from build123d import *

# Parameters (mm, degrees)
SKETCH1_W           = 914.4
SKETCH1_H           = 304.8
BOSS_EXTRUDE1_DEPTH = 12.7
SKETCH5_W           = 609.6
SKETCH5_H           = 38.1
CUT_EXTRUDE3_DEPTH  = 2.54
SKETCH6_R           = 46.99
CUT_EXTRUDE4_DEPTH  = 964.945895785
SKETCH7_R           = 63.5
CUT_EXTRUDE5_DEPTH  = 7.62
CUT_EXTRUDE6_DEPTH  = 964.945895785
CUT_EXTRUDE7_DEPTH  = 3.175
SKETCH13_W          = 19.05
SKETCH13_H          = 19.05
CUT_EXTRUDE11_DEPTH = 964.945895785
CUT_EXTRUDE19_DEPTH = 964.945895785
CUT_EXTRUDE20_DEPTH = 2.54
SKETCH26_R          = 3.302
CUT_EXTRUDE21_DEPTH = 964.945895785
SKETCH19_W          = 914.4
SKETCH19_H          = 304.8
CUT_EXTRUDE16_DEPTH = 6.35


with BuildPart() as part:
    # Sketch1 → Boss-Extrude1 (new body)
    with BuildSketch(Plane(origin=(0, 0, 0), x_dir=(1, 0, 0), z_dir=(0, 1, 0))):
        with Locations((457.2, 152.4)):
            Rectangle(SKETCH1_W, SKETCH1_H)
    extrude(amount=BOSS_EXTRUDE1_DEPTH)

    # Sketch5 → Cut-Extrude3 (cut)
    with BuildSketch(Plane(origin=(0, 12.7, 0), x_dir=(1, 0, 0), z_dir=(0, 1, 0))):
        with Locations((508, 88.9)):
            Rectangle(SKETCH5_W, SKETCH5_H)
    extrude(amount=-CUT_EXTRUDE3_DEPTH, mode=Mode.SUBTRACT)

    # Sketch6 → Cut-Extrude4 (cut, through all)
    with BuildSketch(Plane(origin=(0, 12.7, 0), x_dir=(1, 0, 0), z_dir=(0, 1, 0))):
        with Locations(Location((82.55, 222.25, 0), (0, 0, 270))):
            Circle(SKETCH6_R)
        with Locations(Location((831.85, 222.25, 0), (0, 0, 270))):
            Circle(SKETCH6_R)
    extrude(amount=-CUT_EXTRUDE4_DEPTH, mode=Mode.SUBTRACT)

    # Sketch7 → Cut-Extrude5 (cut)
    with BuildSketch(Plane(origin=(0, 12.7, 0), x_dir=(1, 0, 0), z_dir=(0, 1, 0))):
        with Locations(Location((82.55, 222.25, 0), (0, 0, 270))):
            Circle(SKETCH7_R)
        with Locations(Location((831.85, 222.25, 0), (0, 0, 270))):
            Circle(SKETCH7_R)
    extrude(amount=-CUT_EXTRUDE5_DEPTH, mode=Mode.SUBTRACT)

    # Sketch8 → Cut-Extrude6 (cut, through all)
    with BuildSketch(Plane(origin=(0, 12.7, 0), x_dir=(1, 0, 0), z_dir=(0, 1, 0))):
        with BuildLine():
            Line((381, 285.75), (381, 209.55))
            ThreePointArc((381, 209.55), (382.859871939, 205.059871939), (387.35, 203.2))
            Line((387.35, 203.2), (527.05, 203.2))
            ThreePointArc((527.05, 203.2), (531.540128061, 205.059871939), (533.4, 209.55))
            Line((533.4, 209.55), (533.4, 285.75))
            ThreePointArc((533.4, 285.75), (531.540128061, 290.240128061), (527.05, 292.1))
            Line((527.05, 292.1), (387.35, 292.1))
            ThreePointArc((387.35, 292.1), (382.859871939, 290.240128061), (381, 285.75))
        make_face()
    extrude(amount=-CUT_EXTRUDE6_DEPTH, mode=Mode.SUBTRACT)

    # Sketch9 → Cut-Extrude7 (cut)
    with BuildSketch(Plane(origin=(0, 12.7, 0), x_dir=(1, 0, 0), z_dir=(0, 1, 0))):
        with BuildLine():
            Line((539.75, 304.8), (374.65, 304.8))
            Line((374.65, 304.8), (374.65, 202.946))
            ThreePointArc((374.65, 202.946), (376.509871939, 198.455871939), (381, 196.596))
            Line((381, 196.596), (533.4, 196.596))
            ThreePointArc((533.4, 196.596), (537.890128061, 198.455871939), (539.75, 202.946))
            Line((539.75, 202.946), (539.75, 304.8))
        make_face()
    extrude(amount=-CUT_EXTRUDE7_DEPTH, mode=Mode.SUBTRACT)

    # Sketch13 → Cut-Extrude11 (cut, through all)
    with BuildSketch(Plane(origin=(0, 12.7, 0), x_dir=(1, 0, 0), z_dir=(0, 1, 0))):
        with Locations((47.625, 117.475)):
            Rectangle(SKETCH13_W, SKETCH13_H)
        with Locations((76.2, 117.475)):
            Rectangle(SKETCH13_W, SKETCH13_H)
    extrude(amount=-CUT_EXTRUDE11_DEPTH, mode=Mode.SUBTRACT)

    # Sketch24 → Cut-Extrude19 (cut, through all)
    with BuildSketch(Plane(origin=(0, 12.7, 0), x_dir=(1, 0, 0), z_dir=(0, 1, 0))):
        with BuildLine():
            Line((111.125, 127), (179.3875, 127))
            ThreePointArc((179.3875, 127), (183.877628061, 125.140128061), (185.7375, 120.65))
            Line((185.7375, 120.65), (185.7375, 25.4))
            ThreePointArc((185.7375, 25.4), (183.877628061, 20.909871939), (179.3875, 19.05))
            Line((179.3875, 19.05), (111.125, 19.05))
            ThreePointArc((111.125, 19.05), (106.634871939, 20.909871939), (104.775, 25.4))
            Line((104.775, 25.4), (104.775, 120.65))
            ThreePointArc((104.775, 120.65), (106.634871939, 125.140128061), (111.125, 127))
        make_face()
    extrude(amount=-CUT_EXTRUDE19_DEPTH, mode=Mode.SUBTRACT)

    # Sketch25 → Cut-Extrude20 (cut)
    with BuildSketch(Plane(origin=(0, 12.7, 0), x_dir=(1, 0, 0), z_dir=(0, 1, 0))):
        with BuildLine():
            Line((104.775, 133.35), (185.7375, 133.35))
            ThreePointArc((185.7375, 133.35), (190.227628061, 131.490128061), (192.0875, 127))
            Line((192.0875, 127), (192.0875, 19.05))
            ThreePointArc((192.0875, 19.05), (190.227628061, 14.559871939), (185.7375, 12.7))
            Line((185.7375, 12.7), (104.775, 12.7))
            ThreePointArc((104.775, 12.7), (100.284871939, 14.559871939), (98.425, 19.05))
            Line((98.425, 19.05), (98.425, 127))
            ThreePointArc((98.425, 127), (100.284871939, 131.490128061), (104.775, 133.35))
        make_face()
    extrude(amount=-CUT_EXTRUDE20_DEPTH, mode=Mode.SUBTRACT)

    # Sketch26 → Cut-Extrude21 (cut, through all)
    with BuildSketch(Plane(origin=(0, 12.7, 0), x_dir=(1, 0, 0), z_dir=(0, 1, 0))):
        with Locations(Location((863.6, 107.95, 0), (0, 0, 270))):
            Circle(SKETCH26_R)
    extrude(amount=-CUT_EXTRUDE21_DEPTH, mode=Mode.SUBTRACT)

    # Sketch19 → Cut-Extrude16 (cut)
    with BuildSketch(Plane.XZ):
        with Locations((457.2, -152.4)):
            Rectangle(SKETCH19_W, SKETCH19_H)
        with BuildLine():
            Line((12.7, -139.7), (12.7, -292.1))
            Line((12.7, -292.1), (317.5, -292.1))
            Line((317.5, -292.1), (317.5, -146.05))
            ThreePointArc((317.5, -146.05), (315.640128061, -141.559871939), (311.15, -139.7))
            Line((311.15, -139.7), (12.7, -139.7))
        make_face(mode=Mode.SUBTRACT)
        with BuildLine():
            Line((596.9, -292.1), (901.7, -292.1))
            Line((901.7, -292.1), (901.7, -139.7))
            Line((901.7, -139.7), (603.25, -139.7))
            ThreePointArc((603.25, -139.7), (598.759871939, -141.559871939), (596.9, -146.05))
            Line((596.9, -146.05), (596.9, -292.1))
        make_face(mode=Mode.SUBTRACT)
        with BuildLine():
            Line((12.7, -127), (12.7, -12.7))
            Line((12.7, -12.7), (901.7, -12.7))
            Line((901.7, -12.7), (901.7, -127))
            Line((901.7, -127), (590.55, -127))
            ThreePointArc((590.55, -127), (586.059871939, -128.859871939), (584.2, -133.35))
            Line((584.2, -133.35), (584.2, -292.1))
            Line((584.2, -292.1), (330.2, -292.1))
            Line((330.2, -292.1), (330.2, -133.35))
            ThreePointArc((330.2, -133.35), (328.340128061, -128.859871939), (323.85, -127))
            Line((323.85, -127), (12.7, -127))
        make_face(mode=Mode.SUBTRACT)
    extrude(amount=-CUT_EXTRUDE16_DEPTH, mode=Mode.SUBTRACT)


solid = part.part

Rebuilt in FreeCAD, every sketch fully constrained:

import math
import FreeCAD as App
import Part
import Sketcher
Q = App.Units.Quantity


def add_polygon(sketch, points):
    """Adds a closed chain of lines whose ends are joined by coincident constraints."""
    first, n = sketch.GeometryCount, len(points)
    for a, b in zip(points, points[1:] + points[:1]):
        sketch.addGeometry(Part.LineSegment(App.Vector(*a, 0), App.Vector(*b, 0)), False)
    for i in range(n):
        sketch.addConstraint(Sketcher.Constraint("Coincident", first + i, 2, first + (i + 1) % n, 1))

doc = App.newDocument("Part")
body = doc.addObject("PartDesign::Body", "Body")

sketch1 = body.newObject("Sketcher::SketchObject", "Sketch")
sketch1.AttachmentSupport = (doc.getObject("XZ_Plane"), [""])
sketch1.MapMode = "FlatFace"
add_polygon(sketch1, [(0, -304.8), (0, 0), (914.4, 0), (914.4, -304.8)])
sketch1.addConstraint(Sketcher.Constraint("Vertical", 0))
sketch1.addConstraint(Sketcher.Constraint("Horizontal", 1))
sketch1.addConstraint(Sketcher.Constraint("Vertical", 2))
sketch1.addConstraint(Sketcher.Constraint("Horizontal", 3))
sketch1.addConstraint(Sketcher.Constraint("Coincident", 0, 2, -1, 1))
sketch1.addConstraint(Sketcher.Constraint("DistanceX", 1, 1, 1, 2, Q("36 in")))
sketch1.addConstraint(Sketcher.Constraint("DistanceY", 0, 1, 0, 2, Q("12 in")))
pad1 = body.newObject("PartDesign::Pad", "Pad")
pad1.Profile = sketch1
pad1.Length = Q("0.5 in")
pad1.Reversed = True

sketch2 = body.newObject("Sketcher::SketchObject", "Sketch001")
sketch2.AttachmentSupport = (doc.getObject("XZ_Plane"), [""])
sketch2.MapMode = "FlatFace"
sketch2.AttachmentOffset = App.Placement(App.Vector(0, 0, -0.5 * 25.4), App.Rotation())
add_polygon(sketch2, [(203.2, -107.95), (203.2, -69.85), (812.8, -69.85), (812.8, -107.95)])
sketch2.addConstraint(Sketcher.Constraint("Vertical", 0))
sketch2.addConstraint(Sketcher.Constraint("Horizontal", 1))
sketch2.addConstraint(Sketcher.Constraint("Vertical", 2))
sketch2.addConstraint(Sketcher.Constraint("Horizontal", 3))
sketch2.addConstraint(Sketcher.Constraint("DistanceX", 1, 1, 1, 2, Q("24 in")))
sketch2.addConstraint(Sketcher.Constraint("DistanceY", 0, 1, 0, 2, Q("1.5 in")))
sketch2.addConstraint(Sketcher.Constraint("DistanceX", -1, 1, 0, 2, Q("8 in")))
sketch2.addConstraint(Sketcher.Constraint("DistanceY", 0, 2, -1, 1, Q("2.75 in")))
pocket1 = body.newObject("PartDesign::Pocket", "Pocket")
pocket1.Profile = sketch2
pocket1.Length = Q("0.1 in")
pocket1.Reversed = True

sketch3 = body.newObject("Sketcher::SketchObject", "Sketch002")
sketch3.AttachmentSupport = (doc.getObject("XZ_Plane"), [""])
sketch3.MapMode = "FlatFace"
sketch3.AttachmentOffset = App.Placement(App.Vector(0, 0, -0.5 * 25.4), App.Rotation())
sketch3.addGeometry(Part.Circle(App.Vector(82.55, -222.25, 0), App.Vector(0, 0, 1), 46.99), False)
sketch3.addGeometry(Part.Circle(App.Vector(831.85, -222.25, 0), App.Vector(0, 0, 1), 46.99), False)
sketch3.addConstraint(Sketcher.Constraint("Equal", 0, 1))
sketch3.addConstraint(Sketcher.Constraint("Horizontal", 0, 3, 1, 3))
sketch3.addConstraint(Sketcher.Constraint("Diameter", 0, Q("3.7 in")))
sketch3.addConstraint(Sketcher.Constraint("DistanceX", 0, 3, 1, 3, Q("29.5 in")))
sketch3.addConstraint(Sketcher.Constraint("DistanceX", -1, 1, 0, 3, Q("3.25 in")))
sketch3.addConstraint(Sketcher.Constraint("DistanceY", 0, 3, -1, 1, Q("8.75 in")))
pocket2 = body.newObject("PartDesign::Pocket", "Pocket001")
pocket2.Profile = sketch3
pocket2.Type = "ThroughAll"
pocket2.Reversed = True

sketch4 = body.newObject("Sketcher::SketchObject", "Sketch003")
sketch4.AttachmentSupport = (doc.getObject("XZ_Plane"), [""])
sketch4.MapMode = "FlatFace"
sketch4.AttachmentOffset = App.Placement(App.Vector(0, 0, -0.5 * 25.4), App.Rotation())
sketch4.addGeometry(Part.Circle(App.Vector(82.55, -222.25, 0), App.Vector(0, 0, 1), 63.5), False)
sketch4.addGeometry(Part.Circle(App.Vector(831.85, -222.25, 0), App.Vector(0, 0, 1), 63.5), False)
sketch4.addConstraint(Sketcher.Constraint("Equal", 0, 1))
sketch4.addConstraint(Sketcher.Constraint("Horizontal", 0, 3, 1, 3))
sketch4.addConstraint(Sketcher.Constraint("Diameter", 0, Q("5 in")))
sketch4.addConstraint(Sketcher.Constraint("DistanceX", 0, 3, 1, 3, Q("29.5 in")))
sketch4.addConstraint(Sketcher.Constraint("DistanceX", -1, 1, 0, 3, Q("3.25 in")))
sketch4.addConstraint(Sketcher.Constraint("DistanceY", 0, 3, -1, 1, Q("8.75 in")))
pocket3 = body.newObject("PartDesign::Pocket", "Pocket002")
pocket3.Profile = sketch4
pocket3.Length = Q("0.3 in")
pocket3.Reversed = True

sketch5 = body.newObject("Sketcher::SketchObject", "Sketch004")
sketch5.AttachmentSupport = (doc.getObject("XZ_Plane"), [""])
sketch5.MapMode = "FlatFace"
sketch5.AttachmentOffset = App.Placement(App.Vector(0, 0, -0.5 * 25.4), App.Rotation())
sketch5.addGeometry(Part.LineSegment(App.Vector(381, -285.75, 0), App.Vector(381, -209.55, 0)), False)
sketch5.addGeometry(Part.ArcOfCircle(Part.Circle(App.Vector(387.35, -209.55, 0), App.Vector(0, 0, 1), 6.35), math.radians(90), math.radians(180)), False)
sketch5.addGeometry(Part.LineSegment(App.Vector(387.35, -203.2, 0), App.Vector(527.05, -203.2, 0)), False)
sketch5.addGeometry(Part.ArcOfCircle(Part.Circle(App.Vector(527.05, -209.55, 0), App.Vector(0, 0, 1), 6.35), math.radians(0), math.radians(90)), False)
sketch5.addGeometry(Part.LineSegment(App.Vector(533.4, -209.55, 0), App.Vector(533.4, -285.75, 0)), False)
sketch5.addGeometry(Part.ArcOfCircle(Part.Circle(App.Vector(527.05, -285.75, 0), App.Vector(0, 0, 1), 6.35), math.radians(-90), math.radians(0)), False)
sketch5.addGeometry(Part.LineSegment(App.Vector(527.05, -292.1, 0), App.Vector(387.35, -292.1, 0)), False)
sketch5.addGeometry(Part.ArcOfCircle(Part.Circle(App.Vector(387.35, -285.75, 0), App.Vector(0, 0, 1), 6.35), math.radians(180), math.radians(270)), False)
sketch5.addConstraint(Sketcher.Constraint("Tangent", 0, 2, 1, 2))
sketch5.addConstraint(Sketcher.Constraint("Tangent", 1, 1, 2, 1))
sketch5.addConstraint(Sketcher.Constraint("Tangent", 2, 2, 3, 2))
sketch5.addConstraint(Sketcher.Constraint("Tangent", 3, 1, 4, 1))
sketch5.addConstraint(Sketcher.Constraint("Tangent", 4, 2, 5, 2))
sketch5.addConstraint(Sketcher.Constraint("Tangent", 5, 1, 6, 1))
sketch5.addConstraint(Sketcher.Constraint("Tangent", 6, 2, 7, 2))
sketch5.addConstraint(Sketcher.Constraint("Tangent", 7, 1, 0, 1))
sketch5.addConstraint(Sketcher.Constraint("Vertical", 0))
sketch5.addConstraint(Sketcher.Constraint("Horizontal", 2))
sketch5.addConstraint(Sketcher.Constraint("Vertical", 4))
sketch5.addConstraint(Sketcher.Constraint("Horizontal", 6))
sketch5.addConstraint(Sketcher.Constraint("Equal", 1, 3))
sketch5.addConstraint(Sketcher.Constraint("Equal", 3, 5))
sketch5.addConstraint(Sketcher.Constraint("Equal", 5, 7))
sketch5.addConstraint(Sketcher.Constraint("DistanceY", 0, 1, 0, 2, Q("3 in")))
sketch5.addConstraint(Sketcher.Constraint("Radius", 1, Q("0.25 in")))
sketch5.addConstraint(Sketcher.Constraint("DistanceX", 2, 1, 2, 2, Q("5.5 in")))
sketch5.addConstraint(Sketcher.Constraint("DistanceX", -1, 1, 0, 2, Q("15 in")))
sketch5.addConstraint(Sketcher.Constraint("DistanceY", 1, 1, -1, 1, Q("8 in")))
pocket4 = body.newObject("PartDesign::Pocket", "Pocket003")
pocket4.Profile = sketch5
pocket4.Type = "ThroughAll"
pocket4.Reversed = True

sketch6 = body.newObject("Sketcher::SketchObject", "Sketch005")
sketch6.AttachmentSupport = (doc.getObject("XZ_Plane"), [""])
sketch6.MapMode = "FlatFace"
sketch6.AttachmentOffset = App.Placement(App.Vector(0, 0, -0.5 * 25.4), App.Rotation())
sketch6.addGeometry(Part.LineSegment(App.Vector(539.75, -304.8, 0), App.Vector(374.65, -304.8, 0)), False)
sketch6.addGeometry(Part.LineSegment(App.Vector(374.65, -304.8, 0), App.Vector(374.65, -202.946, 0)), False)
sketch6.addGeometry(Part.ArcOfCircle(Part.Circle(App.Vector(381, -202.946, 0), App.Vector(0, 0, 1), 6.35), math.radians(90), math.radians(180)), False)
sketch6.addGeometry(Part.LineSegment(App.Vector(381, -196.596, 0), App.Vector(533.4, -196.596, 0)), False)
sketch6.addGeometry(Part.ArcOfCircle(Part.Circle(App.Vector(533.4, -202.946, 0), App.Vector(0, 0, 1), 6.35), math.radians(0), math.radians(90)), False)
sketch6.addGeometry(Part.LineSegment(App.Vector(539.75, -202.946, 0), App.Vector(539.75, -304.8, 0)), False)
sketch6.addConstraint(Sketcher.Constraint("Coincident", 0, 2, 1, 1))
sketch6.addConstraint(Sketcher.Constraint("Tangent", 1, 2, 2, 2))
sketch6.addConstraint(Sketcher.Constraint("Tangent", 2, 1, 3, 1))
sketch6.addConstraint(Sketcher.Constraint("Tangent", 3, 2, 4, 2))
sketch6.addConstraint(Sketcher.Constraint("Tangent", 4, 1, 5, 1))
sketch6.addConstraint(Sketcher.Constraint("Coincident", 5, 2, 0, 1))
sketch6.addConstraint(Sketcher.Constraint("Horizontal", 0))
sketch6.addConstraint(Sketcher.Constraint("Vertical", 1))
sketch6.addConstraint(Sketcher.Constraint("Horizontal", 3))
sketch6.addConstraint(Sketcher.Constraint("Vertical", 5))
sketch6.addConstraint(Sketcher.Constraint("Equal", 2, 4))
sketch6.addConstraint(Sketcher.Constraint("DistanceX", 3, 1, 3, 2, Q("6 in")))
sketch6.addConstraint(Sketcher.Constraint("Radius", 2, Q("0.25 in")))
sketch6.addConstraint(Sketcher.Constraint("DistanceX", -1, 1, 2, 3, Q("15 in")))
sketch6.addConstraint(Sketcher.Constraint("DistanceY", 0, 2, -1, 1, Q("12 in")))
sketch6.addConstraint(Sketcher.Constraint("DistanceY", 1, 1, 1, 2, Q("4.01 in")))
pocket5 = body.newObject("PartDesign::Pocket", "Pocket004")
pocket5.Profile = sketch6
pocket5.Length = Q("0.125 in")
pocket5.Reversed = True

sketch7 = body.newObject("Sketcher::SketchObject", "Sketch006")
sketch7.AttachmentSupport = (doc.getObject("XZ_Plane"), [""])
sketch7.MapMode = "FlatFace"
sketch7.AttachmentOffset = App.Placement(App.Vector(0, 0, -0.5 * 25.4), App.Rotation())
add_polygon(sketch7, [(38.1, -127), (38.1, -107.95), (57.15, -107.95), (57.15, -127)])
add_polygon(sketch7, [(66.675, -127), (66.675, -107.95), (85.725, -107.95), (85.725, -127)])
sketch7.addConstraint(Sketcher.Constraint("Vertical", 0))
sketch7.addConstraint(Sketcher.Constraint("Horizontal", 1))
sketch7.addConstraint(Sketcher.Constraint("Vertical", 2))
sketch7.addConstraint(Sketcher.Constraint("Horizontal", 3))
sketch7.addConstraint(Sketcher.Constraint("Vertical", 4))
sketch7.addConstraint(Sketcher.Constraint("Horizontal", 5))
sketch7.addConstraint(Sketcher.Constraint("Vertical", 6))
sketch7.addConstraint(Sketcher.Constraint("Horizontal", 7))
sketch7.addConstraint(Sketcher.Constraint("Horizontal", 1, 2, 4, 2))
sketch7.addConstraint(Sketcher.Constraint("Horizontal", 3, 2, 6, 2))
sketch7.addConstraint(Sketcher.Constraint("Equal", 3, 5))
sketch7.addConstraint(Sketcher.Constraint("Equal", 7, 0))
sketch7.addConstraint(Sketcher.Constraint("DistanceY", 2, 2, -1, 1, Q("5 in")))
sketch7.addConstraint(Sketcher.Constraint("DistanceX", 1, 1, 1, 2, Q("0.75 in")))
sketch7.addConstraint(Sketcher.Constraint("DistanceX", -1, 1, 0, 2, Q("1.5 in")))
sketch7.addConstraint(Sketcher.Constraint("DistanceX", -1, 1, 4, 2, Q("2.625 in")))
pocket6 = body.newObject("PartDesign::Pocket", "Pocket005")
pocket6.Profile = sketch7
pocket6.Type = "ThroughAll"
pocket6.Reversed = True

sketch8 = body.newObject("Sketcher::SketchObject", "Sketch007")
sketch8.AttachmentSupport = (doc.getObject("XZ_Plane"), [""])
sketch8.MapMode = "FlatFace"
sketch8.AttachmentOffset = App.Placement(App.Vector(0, 0, -0.5 * 25.4), App.Rotation())
sketch8.addGeometry(Part.LineSegment(App.Vector(179.3875, -127, 0), App.Vector(111.125, -127, 0)), False)
sketch8.addGeometry(Part.ArcOfCircle(Part.Circle(App.Vector(111.125, -120.65, 0), App.Vector(0, 0, 1), 6.35), math.radians(180), math.radians(270)), False)
sketch8.addGeometry(Part.LineSegment(App.Vector(104.775, -120.65, 0), App.Vector(104.775, -25.4, 0)), False)
sketch8.addGeometry(Part.ArcOfCircle(Part.Circle(App.Vector(111.125, -25.4, 0), App.Vector(0, 0, 1), 6.35), math.radians(90), math.radians(180)), False)
sketch8.addGeometry(Part.LineSegment(App.Vector(111.125, -19.05, 0), App.Vector(179.3875, -19.05, 0)), False)
sketch8.addGeometry(Part.ArcOfCircle(Part.Circle(App.Vector(179.3875, -25.4, 0), App.Vector(0, 0, 1), 6.35), math.radians(0), math.radians(90)), False)
sketch8.addGeometry(Part.LineSegment(App.Vector(185.7375, -25.4, 0), App.Vector(185.7375, -120.65, 0)), False)
sketch8.addGeometry(Part.ArcOfCircle(Part.Circle(App.Vector(179.3875, -120.65, 0), App.Vector(0, 0, 1), 6.35), math.radians(-90), math.radians(0)), False)
sketch8.addConstraint(Sketcher.Constraint("Tangent", 0, 2, 1, 2))
sketch8.addConstraint(Sketcher.Constraint("Tangent", 1, 1, 2, 1))
sketch8.addConstraint(Sketcher.Constraint("Tangent", 2, 2, 3, 2))
sketch8.addConstraint(Sketcher.Constraint("Tangent", 3, 1, 4, 1))
sketch8.addConstraint(Sketcher.Constraint("Tangent", 4, 2, 5, 2))
sketch8.addConstraint(Sketcher.Constraint("Tangent", 5, 1, 6, 1))
sketch8.addConstraint(Sketcher.Constraint("Tangent", 6, 2, 7, 2))
sketch8.addConstraint(Sketcher.Constraint("Tangent", 7, 1, 0, 1))
sketch8.addConstraint(Sketcher.Constraint("Horizontal", 0))
sketch8.addConstraint(Sketcher.Constraint("Vertical", 2))
sketch8.addConstraint(Sketcher.Constraint("Horizontal", 4))
sketch8.addConstraint(Sketcher.Constraint("Vertical", 6))
sketch8.addConstraint(Sketcher.Constraint("Equal", 1, 3))
sketch8.addConstraint(Sketcher.Constraint("Equal", 3, 5))
sketch8.addConstraint(Sketcher.Constraint("Equal", 5, 7))
sketch8.addConstraint(Sketcher.Constraint("Radius", 1, Q("0.25 in")))
sketch8.addConstraint(Sketcher.Constraint("DistanceY", 3, 3, -1, 1, Q("1 in")))
sketch8.addConstraint(Sketcher.Constraint("DistanceY", 0, 2, -1, 1, Q("5 in")))
sketch8.addConstraint(Sketcher.Constraint("DistanceX", 0, 2, 0, 1, Q("2.6875 in")))
sketch8.addConstraint(Sketcher.Constraint("DistanceX", -1, 1, 1, 3, Q("4.375 in")))
pocket7 = body.newObject("PartDesign::Pocket", "Pocket006")
pocket7.Profile = sketch8
pocket7.Type = "ThroughAll"
pocket7.Reversed = True

sketch9 = body.newObject("Sketcher::SketchObject", "Sketch008")
sketch9.AttachmentSupport = (doc.getObject("XZ_Plane"), [""])
sketch9.MapMode = "FlatFace"
sketch9.AttachmentOffset = App.Placement(App.Vector(0, 0, -0.5 * 25.4), App.Rotation())
sketch9.addGeometry(Part.LineSegment(App.Vector(185.7375, -133.35, 0), App.Vector(104.775, -133.35, 0)), False)
sketch9.addGeometry(Part.ArcOfCircle(Part.Circle(App.Vector(104.775, -127, 0), App.Vector(0, 0, 1), 6.35), math.radians(180), math.radians(270)), False)
sketch9.addGeometry(Part.LineSegment(App.Vector(98.425, -127, 0), App.Vector(98.425, -19.05, 0)), False)
sketch9.addGeometry(Part.ArcOfCircle(Part.Circle(App.Vector(104.775, -19.05, 0), App.Vector(0, 0, 1), 6.35), math.radians(90), math.radians(180)), False)
sketch9.addGeometry(Part.LineSegment(App.Vector(104.775, -12.7, 0), App.Vector(185.7375, -12.7, 0)), False)
sketch9.addGeometry(Part.ArcOfCircle(Part.Circle(App.Vector(185.7375, -19.05, 0), App.Vector(0, 0, 1), 6.35), math.radians(0), math.radians(90)), False)
sketch9.addGeometry(Part.LineSegment(App.Vector(192.0875, -19.05, 0), App.Vector(192.0875, -127, 0)), False)
sketch9.addGeometry(Part.ArcOfCircle(Part.Circle(App.Vector(185.7375, -127, 0), App.Vector(0, 0, 1), 6.35), math.radians(-90), math.radians(0)), False)
sketch9.addConstraint(Sketcher.Constraint("Tangent", 0, 2, 1, 2))
sketch9.addConstraint(Sketcher.Constraint("Tangent", 1, 1, 2, 1))
sketch9.addConstraint(Sketcher.Constraint("Tangent", 2, 2, 3, 2))
sketch9.addConstraint(Sketcher.Constraint("Tangent", 3, 1, 4, 1))
sketch9.addConstraint(Sketcher.Constraint("Tangent", 4, 2, 5, 2))
sketch9.addConstraint(Sketcher.Constraint("Tangent", 5, 1, 6, 1))
sketch9.addConstraint(Sketcher.Constraint("Tangent", 6, 2, 7, 2))
sketch9.addConstraint(Sketcher.Constraint("Tangent", 7, 1, 0, 1))
sketch9.addConstraint(Sketcher.Constraint("Horizontal", 0))
sketch9.addConstraint(Sketcher.Constraint("Vertical", 2))
sketch9.addConstraint(Sketcher.Constraint("Horizontal", 4))
sketch9.addConstraint(Sketcher.Constraint("Vertical", 6))
sketch9.addConstraint(Sketcher.Constraint("Equal", 1, 3))
sketch9.addConstraint(Sketcher.Constraint("Equal", 3, 5))
sketch9.addConstraint(Sketcher.Constraint("Equal", 5, 7))
sketch9.addConstraint(Sketcher.Constraint("Radius", 1, Q("0.25 in")))
sketch9.addConstraint(Sketcher.Constraint("DistanceY", 1, 3, -1, 1, Q("5 in")))
sketch9.addConstraint(Sketcher.Constraint("DistanceY", 2, 1, 2, 2, Q("4.25 in")))
sketch9.addConstraint(Sketcher.Constraint("DistanceX", 0, 2, 0, 1, Q("3.1875 in")))
sketch9.addConstraint(Sketcher.Constraint("DistanceX", -1, 1, 1, 3, Q("4.125 in")))
pocket8 = body.newObject("PartDesign::Pocket", "Pocket007")
pocket8.Profile = sketch9
pocket8.Length = Q("0.1 in")
pocket8.Reversed = True

sketch10 = body.newObject("Sketcher::SketchObject", "Sketch009")
sketch10.AttachmentSupport = (doc.getObject("XZ_Plane"), [""])
sketch10.MapMode = "FlatFace"
sketch10.AttachmentOffset = App.Placement(App.Vector(0, 0, -0.5 * 25.4), App.Rotation())
sketch10.addGeometry(Part.Circle(App.Vector(863.6, -107.95, 0), App.Vector(0, 0, 1), 3.302), False)
sketch10.addConstraint(Sketcher.Constraint("Diameter", 0, Q("0.26 in")))
sketch10.addConstraint(Sketcher.Constraint("DistanceX", -1, 1, 0, 3, Q("34 in")))
sketch10.addConstraint(Sketcher.Constraint("DistanceY", 0, 3, -1, 1, Q("4.25 in")))
pocket9 = body.newObject("PartDesign::Pocket", "Pocket008")
pocket9.Profile = sketch10
pocket9.Type = "ThroughAll"
pocket9.Reversed = True

sketch11 = body.newObject("Sketcher::SketchObject", "Sketch010")
sketch11.AttachmentSupport = (doc.getObject("XZ_Plane"), [""])
sketch11.MapMode = "FlatFace"
add_polygon(sketch11, [(0, 0), (0, -304.8), (914.4, -304.8), (914.4, 0)])
sketch11.addGeometry(Part.LineSegment(App.Vector(12.7, -292.1, 0), App.Vector(12.7, -139.7, 0)), False)
sketch11.addGeometry(Part.LineSegment(App.Vector(12.7, -139.7, 0), App.Vector(311.15, -139.7, 0)), False)
sketch11.addGeometry(Part.ArcOfCircle(Part.Circle(App.Vector(311.15, -146.05, 0), App.Vector(0, 0, 1), 6.35), math.radians(0), math.radians(90)), False)
sketch11.addGeometry(Part.LineSegment(App.Vector(317.5, -146.05, 0), App.Vector(317.5, -292.1, 0)), False)
sketch11.addGeometry(Part.LineSegment(App.Vector(317.5, -292.1, 0), App.Vector(12.7, -292.1, 0)), False)
sketch11.addGeometry(Part.LineSegment(App.Vector(901.7, -292.1, 0), App.Vector(596.9, -292.1, 0)), False)
sketch11.addGeometry(Part.LineSegment(App.Vector(596.9, -292.1, 0), App.Vector(596.9, -146.05, 0)), False)
sketch11.addGeometry(Part.ArcOfCircle(Part.Circle(App.Vector(603.25, -146.05, 0), App.Vector(0, 0, 1), 6.35), math.radians(90), math.radians(180)), False)
sketch11.addGeometry(Part.LineSegment(App.Vector(603.25, -139.7, 0), App.Vector(901.7, -139.7, 0)), False)
sketch11.addGeometry(Part.LineSegment(App.Vector(901.7, -139.7, 0), App.Vector(901.7, -292.1, 0)), False)
sketch11.addGeometry(Part.LineSegment(App.Vector(323.85, -127, 0), App.Vector(12.7, -127, 0)), False)
sketch11.addGeometry(Part.LineSegment(App.Vector(12.7, -127, 0), App.Vector(12.7, -12.7, 0)), False)
sketch11.addGeometry(Part.LineSegment(App.Vector(12.7, -12.7, 0), App.Vector(901.7, -12.7, 0)), False)
sketch11.addGeometry(Part.LineSegment(App.Vector(901.7, -12.7, 0), App.Vector(901.7, -127, 0)), False)
sketch11.addGeometry(Part.LineSegment(App.Vector(901.7, -127, 0), App.Vector(590.55, -127, 0)), False)
sketch11.addGeometry(Part.ArcOfCircle(Part.Circle(App.Vector(590.55, -133.35, 0), App.Vector(0, 0, 1), 6.35), math.radians(90), math.radians(180)), False)
sketch11.addGeometry(Part.LineSegment(App.Vector(584.2, -133.35, 0), App.Vector(584.2, -292.1, 0)), False)
sketch11.addGeometry(Part.LineSegment(App.Vector(584.2, -292.1, 0), App.Vector(330.2, -292.1, 0)), False)
sketch11.addGeometry(Part.LineSegment(App.Vector(330.2, -292.1, 0), App.Vector(330.2, -133.35, 0)), False)
sketch11.addGeometry(Part.ArcOfCircle(Part.Circle(App.Vector(323.85, -133.35, 0), App.Vector(0, 0, 1), 6.35), math.radians(0), math.radians(90)), False)
sketch11.addConstraint(Sketcher.Constraint("Coincident", 4, 2, 5, 1))
sketch11.addConstraint(Sketcher.Constraint("Tangent", 5, 2, 6, 2))
sketch11.addConstraint(Sketcher.Constraint("Tangent", 6, 1, 7, 1))
sketch11.addConstraint(Sketcher.Constraint("Coincident", 7, 2, 8, 1))
sketch11.addConstraint(Sketcher.Constraint("Coincident", 8, 2, 4, 1))
sketch11.addConstraint(Sketcher.Constraint("Coincident", 9, 2, 10, 1))
sketch11.addConstraint(Sketcher.Constraint("Tangent", 10, 2, 11, 2))
sketch11.addConstraint(Sketcher.Constraint("Tangent", 11, 1, 12, 1))
sketch11.addConstraint(Sketcher.Constraint("Coincident", 12, 2, 13, 1))
sketch11.addConstraint(Sketcher.Constraint("Coincident", 13, 2, 9, 1))
sketch11.addConstraint(Sketcher.Constraint("Coincident", 14, 2, 15, 1))
sketch11.addConstraint(Sketcher.Constraint("Coincident", 15, 2, 16, 1))
sketch11.addConstraint(Sketcher.Constraint("Coincident", 16, 2, 17, 1))
sketch11.addConstraint(Sketcher.Constraint("Coincident", 17, 2, 18, 1))
sketch11.addConstraint(Sketcher.Constraint("Tangent", 18, 2, 19, 1))
sketch11.addConstraint(Sketcher.Constraint("Tangent", 19, 2, 20, 1))
sketch11.addConstraint(Sketcher.Constraint("Coincident", 20, 2, 21, 1))
sketch11.addConstraint(Sketcher.Constraint("Coincident", 21, 2, 22, 1))
sketch11.addConstraint(Sketcher.Constraint("Tangent", 22, 2, 23, 1))
sketch11.addConstraint(Sketcher.Constraint("Tangent", 23, 2, 14, 1))
sketch11.addConstraint(Sketcher.Constraint("Vertical", 0))
sketch11.addConstraint(Sketcher.Constraint("Horizontal", 1))
sketch11.addConstraint(Sketcher.Constraint("Vertical", 2))
sketch11.addConstraint(Sketcher.Constraint("Horizontal", 3))
sketch11.addConstraint(Sketcher.Constraint("Vertical", 4))
sketch11.addConstraint(Sketcher.Constraint("Horizontal", 5))
sketch11.addConstraint(Sketcher.Constraint("Vertical", 7))
sketch11.addConstraint(Sketcher.Constraint("Horizontal", 8))
sketch11.addConstraint(Sketcher.Constraint("Horizontal", 9))
sketch11.addConstraint(Sketcher.Constraint("Vertical", 10))
sketch11.addConstraint(Sketcher.Constraint("Horizontal", 12))
sketch11.addConstraint(Sketcher.Constraint("Vertical", 13))
sketch11.addConstraint(Sketcher.Constraint("Horizontal", 14))
sketch11.addConstraint(Sketcher.Constraint("Vertical", 15))
sketch11.addConstraint(Sketcher.Constraint("Horizontal", 16))
sketch11.addConstraint(Sketcher.Constraint("Vertical", 17))
sketch11.addConstraint(Sketcher.Constraint("Horizontal", 18))
sketch11.addConstraint(Sketcher.Constraint("Vertical", 20))
sketch11.addConstraint(Sketcher.Constraint("Horizontal", 21))
sketch11.addConstraint(Sketcher.Constraint("Vertical", 22))
sketch11.addConstraint(Sketcher.Constraint("Coincident", 3, 2, -1, 1))
sketch11.addConstraint(Sketcher.Constraint("Equal", 6, 11))
sketch11.addConstraint(Sketcher.Constraint("Equal", 11, 19))
sketch11.addConstraint(Sketcher.Constraint("Equal", 19, 23))
sketch11.addConstraint(Sketcher.Constraint("Horizontal", 6, 3, 11, 3))
sketch11.addConstraint(Sketcher.Constraint("Horizontal", 19, 3, 23, 3))
sketch11.addConstraint(Sketcher.Constraint("Horizontal", 8, 2, 9, 2))
sketch11.addConstraint(Sketcher.Constraint("Horizontal", 13, 2, 20, 2))
sketch11.addConstraint(Sketcher.Constraint("Vertical", 8, 2, 14, 2))
sketch11.addConstraint(Sketcher.Constraint("Vertical", 13, 2, 16, 2))
sketch11.addConstraint(Sketcher.Constraint("Equal", 8, 9))
sketch11.addConstraint(Sketcher.Constraint("Equal", 14, 18))
sketch11.addConstraint(Sketcher.Constraint("Equal", 9, 0))
sketch11.addConstraint(Sketcher.Constraint("DistanceX", 1, 1, 1, 2, Q("36 in")))
sketch11.addConstraint(Sketcher.Constraint("DistanceX", 8, 2, 8, 1, Q("12 in")))
sketch11.addConstraint(Sketcher.Constraint("DistanceX", 16, 1, 16, 2, Q("35 in")))
sketch11.addConstraint(Sketcher.Constraint("DistanceX", 21, 2, 21, 1, Q("10 in")))
sketch11.addConstraint(Sketcher.Constraint("DistanceY", 4, 1, 4, 2, Q("6 in")))
sketch11.addConstraint(Sketcher.Constraint("Radius", 6, Q("0.25 in")))
sketch11.addConstraint(Sketcher.Constraint("DistanceY", 15, 1, 15, 2, Q("4.5 in")))
sketch11.addConstraint(Sketcher.Constraint("DistanceY", 14, 2, -1, 1, Q("5 in")))
sketch11.addConstraint(Sketcher.Constraint("DistanceX", -1, 1, 19, 2, Q("23 in")))
sketch11.addConstraint(Sketcher.Constraint("DistanceY", 4, 2, 15, 2, Q("5 in")))
pocket10 = body.newObject("PartDesign::Pocket", "Pocket009")
pocket10.Profile = sketch11
pocket10.Length = Q("0.25 in")

doc.recompute()
